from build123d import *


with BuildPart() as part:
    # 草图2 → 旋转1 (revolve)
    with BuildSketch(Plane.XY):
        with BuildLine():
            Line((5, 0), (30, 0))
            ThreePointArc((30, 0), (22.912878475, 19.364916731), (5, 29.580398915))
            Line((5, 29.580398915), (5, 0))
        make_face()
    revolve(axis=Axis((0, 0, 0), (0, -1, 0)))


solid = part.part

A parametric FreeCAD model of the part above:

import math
import FreeCAD as App
import Part
import Sketcher
from FreeCAD import Vector

doc = App.newDocument("Part")
body = doc.addObject("PartDesign::Body", "Body")

# Sketch on XY plane
sketch1 = doc.addObject("Sketcher::SketchObject", "Sketch")
body.addObject(sketch1)
sketch1.AttachmentSupport = (doc.XY_Plane, [""])
sketch1.MapMode = "FlatFace"
sketch1.addGeometry([
    Part.LineSegment(Vector(5, 0, 0), Vector(30, 0, 0)),
    Part.ArcOfCircle(Part.Circle(Vector(0, 0, 0), Vector(0, 0, 1), 30), math.radians(0), math.radians(80)),
    Part.LineSegment(Vector(5, 30, 0), Vector(5, 0, 0)),
], False)
sketch1.addConstraint([
    Sketcher.Constraint("Coincident", 0, 2, 1, 1),
    Sketcher.Constraint("Coincident", 1, 2, 2, 1),
    Sketcher.Constraint("Coincident", 2, 2, 0, 1),
    Sketcher.Constraint("Horizontal", 0),
    Sketcher.Constraint("Vertical", 2),
    Sketcher.Constraint("Coincident", 1, 3, -1, 1),
    Sketcher.Constraint("PointOnObject", 0, 2, -1),
    Sketcher.Constraint("Radius", 1, 30.0),
    Sketcher.Constraint("DistanceX", 0, 1, 0, 2, 25.0),
])
revolution = doc.addObject("PartDesign::Revolution", "Revolution")
body.addObject(revolution)
revolution.Profile = sketch1
revolution.ReferenceAxis = (sketch1, ["V_Axis"])
revolution.Angle = 360

doc.recompute()
